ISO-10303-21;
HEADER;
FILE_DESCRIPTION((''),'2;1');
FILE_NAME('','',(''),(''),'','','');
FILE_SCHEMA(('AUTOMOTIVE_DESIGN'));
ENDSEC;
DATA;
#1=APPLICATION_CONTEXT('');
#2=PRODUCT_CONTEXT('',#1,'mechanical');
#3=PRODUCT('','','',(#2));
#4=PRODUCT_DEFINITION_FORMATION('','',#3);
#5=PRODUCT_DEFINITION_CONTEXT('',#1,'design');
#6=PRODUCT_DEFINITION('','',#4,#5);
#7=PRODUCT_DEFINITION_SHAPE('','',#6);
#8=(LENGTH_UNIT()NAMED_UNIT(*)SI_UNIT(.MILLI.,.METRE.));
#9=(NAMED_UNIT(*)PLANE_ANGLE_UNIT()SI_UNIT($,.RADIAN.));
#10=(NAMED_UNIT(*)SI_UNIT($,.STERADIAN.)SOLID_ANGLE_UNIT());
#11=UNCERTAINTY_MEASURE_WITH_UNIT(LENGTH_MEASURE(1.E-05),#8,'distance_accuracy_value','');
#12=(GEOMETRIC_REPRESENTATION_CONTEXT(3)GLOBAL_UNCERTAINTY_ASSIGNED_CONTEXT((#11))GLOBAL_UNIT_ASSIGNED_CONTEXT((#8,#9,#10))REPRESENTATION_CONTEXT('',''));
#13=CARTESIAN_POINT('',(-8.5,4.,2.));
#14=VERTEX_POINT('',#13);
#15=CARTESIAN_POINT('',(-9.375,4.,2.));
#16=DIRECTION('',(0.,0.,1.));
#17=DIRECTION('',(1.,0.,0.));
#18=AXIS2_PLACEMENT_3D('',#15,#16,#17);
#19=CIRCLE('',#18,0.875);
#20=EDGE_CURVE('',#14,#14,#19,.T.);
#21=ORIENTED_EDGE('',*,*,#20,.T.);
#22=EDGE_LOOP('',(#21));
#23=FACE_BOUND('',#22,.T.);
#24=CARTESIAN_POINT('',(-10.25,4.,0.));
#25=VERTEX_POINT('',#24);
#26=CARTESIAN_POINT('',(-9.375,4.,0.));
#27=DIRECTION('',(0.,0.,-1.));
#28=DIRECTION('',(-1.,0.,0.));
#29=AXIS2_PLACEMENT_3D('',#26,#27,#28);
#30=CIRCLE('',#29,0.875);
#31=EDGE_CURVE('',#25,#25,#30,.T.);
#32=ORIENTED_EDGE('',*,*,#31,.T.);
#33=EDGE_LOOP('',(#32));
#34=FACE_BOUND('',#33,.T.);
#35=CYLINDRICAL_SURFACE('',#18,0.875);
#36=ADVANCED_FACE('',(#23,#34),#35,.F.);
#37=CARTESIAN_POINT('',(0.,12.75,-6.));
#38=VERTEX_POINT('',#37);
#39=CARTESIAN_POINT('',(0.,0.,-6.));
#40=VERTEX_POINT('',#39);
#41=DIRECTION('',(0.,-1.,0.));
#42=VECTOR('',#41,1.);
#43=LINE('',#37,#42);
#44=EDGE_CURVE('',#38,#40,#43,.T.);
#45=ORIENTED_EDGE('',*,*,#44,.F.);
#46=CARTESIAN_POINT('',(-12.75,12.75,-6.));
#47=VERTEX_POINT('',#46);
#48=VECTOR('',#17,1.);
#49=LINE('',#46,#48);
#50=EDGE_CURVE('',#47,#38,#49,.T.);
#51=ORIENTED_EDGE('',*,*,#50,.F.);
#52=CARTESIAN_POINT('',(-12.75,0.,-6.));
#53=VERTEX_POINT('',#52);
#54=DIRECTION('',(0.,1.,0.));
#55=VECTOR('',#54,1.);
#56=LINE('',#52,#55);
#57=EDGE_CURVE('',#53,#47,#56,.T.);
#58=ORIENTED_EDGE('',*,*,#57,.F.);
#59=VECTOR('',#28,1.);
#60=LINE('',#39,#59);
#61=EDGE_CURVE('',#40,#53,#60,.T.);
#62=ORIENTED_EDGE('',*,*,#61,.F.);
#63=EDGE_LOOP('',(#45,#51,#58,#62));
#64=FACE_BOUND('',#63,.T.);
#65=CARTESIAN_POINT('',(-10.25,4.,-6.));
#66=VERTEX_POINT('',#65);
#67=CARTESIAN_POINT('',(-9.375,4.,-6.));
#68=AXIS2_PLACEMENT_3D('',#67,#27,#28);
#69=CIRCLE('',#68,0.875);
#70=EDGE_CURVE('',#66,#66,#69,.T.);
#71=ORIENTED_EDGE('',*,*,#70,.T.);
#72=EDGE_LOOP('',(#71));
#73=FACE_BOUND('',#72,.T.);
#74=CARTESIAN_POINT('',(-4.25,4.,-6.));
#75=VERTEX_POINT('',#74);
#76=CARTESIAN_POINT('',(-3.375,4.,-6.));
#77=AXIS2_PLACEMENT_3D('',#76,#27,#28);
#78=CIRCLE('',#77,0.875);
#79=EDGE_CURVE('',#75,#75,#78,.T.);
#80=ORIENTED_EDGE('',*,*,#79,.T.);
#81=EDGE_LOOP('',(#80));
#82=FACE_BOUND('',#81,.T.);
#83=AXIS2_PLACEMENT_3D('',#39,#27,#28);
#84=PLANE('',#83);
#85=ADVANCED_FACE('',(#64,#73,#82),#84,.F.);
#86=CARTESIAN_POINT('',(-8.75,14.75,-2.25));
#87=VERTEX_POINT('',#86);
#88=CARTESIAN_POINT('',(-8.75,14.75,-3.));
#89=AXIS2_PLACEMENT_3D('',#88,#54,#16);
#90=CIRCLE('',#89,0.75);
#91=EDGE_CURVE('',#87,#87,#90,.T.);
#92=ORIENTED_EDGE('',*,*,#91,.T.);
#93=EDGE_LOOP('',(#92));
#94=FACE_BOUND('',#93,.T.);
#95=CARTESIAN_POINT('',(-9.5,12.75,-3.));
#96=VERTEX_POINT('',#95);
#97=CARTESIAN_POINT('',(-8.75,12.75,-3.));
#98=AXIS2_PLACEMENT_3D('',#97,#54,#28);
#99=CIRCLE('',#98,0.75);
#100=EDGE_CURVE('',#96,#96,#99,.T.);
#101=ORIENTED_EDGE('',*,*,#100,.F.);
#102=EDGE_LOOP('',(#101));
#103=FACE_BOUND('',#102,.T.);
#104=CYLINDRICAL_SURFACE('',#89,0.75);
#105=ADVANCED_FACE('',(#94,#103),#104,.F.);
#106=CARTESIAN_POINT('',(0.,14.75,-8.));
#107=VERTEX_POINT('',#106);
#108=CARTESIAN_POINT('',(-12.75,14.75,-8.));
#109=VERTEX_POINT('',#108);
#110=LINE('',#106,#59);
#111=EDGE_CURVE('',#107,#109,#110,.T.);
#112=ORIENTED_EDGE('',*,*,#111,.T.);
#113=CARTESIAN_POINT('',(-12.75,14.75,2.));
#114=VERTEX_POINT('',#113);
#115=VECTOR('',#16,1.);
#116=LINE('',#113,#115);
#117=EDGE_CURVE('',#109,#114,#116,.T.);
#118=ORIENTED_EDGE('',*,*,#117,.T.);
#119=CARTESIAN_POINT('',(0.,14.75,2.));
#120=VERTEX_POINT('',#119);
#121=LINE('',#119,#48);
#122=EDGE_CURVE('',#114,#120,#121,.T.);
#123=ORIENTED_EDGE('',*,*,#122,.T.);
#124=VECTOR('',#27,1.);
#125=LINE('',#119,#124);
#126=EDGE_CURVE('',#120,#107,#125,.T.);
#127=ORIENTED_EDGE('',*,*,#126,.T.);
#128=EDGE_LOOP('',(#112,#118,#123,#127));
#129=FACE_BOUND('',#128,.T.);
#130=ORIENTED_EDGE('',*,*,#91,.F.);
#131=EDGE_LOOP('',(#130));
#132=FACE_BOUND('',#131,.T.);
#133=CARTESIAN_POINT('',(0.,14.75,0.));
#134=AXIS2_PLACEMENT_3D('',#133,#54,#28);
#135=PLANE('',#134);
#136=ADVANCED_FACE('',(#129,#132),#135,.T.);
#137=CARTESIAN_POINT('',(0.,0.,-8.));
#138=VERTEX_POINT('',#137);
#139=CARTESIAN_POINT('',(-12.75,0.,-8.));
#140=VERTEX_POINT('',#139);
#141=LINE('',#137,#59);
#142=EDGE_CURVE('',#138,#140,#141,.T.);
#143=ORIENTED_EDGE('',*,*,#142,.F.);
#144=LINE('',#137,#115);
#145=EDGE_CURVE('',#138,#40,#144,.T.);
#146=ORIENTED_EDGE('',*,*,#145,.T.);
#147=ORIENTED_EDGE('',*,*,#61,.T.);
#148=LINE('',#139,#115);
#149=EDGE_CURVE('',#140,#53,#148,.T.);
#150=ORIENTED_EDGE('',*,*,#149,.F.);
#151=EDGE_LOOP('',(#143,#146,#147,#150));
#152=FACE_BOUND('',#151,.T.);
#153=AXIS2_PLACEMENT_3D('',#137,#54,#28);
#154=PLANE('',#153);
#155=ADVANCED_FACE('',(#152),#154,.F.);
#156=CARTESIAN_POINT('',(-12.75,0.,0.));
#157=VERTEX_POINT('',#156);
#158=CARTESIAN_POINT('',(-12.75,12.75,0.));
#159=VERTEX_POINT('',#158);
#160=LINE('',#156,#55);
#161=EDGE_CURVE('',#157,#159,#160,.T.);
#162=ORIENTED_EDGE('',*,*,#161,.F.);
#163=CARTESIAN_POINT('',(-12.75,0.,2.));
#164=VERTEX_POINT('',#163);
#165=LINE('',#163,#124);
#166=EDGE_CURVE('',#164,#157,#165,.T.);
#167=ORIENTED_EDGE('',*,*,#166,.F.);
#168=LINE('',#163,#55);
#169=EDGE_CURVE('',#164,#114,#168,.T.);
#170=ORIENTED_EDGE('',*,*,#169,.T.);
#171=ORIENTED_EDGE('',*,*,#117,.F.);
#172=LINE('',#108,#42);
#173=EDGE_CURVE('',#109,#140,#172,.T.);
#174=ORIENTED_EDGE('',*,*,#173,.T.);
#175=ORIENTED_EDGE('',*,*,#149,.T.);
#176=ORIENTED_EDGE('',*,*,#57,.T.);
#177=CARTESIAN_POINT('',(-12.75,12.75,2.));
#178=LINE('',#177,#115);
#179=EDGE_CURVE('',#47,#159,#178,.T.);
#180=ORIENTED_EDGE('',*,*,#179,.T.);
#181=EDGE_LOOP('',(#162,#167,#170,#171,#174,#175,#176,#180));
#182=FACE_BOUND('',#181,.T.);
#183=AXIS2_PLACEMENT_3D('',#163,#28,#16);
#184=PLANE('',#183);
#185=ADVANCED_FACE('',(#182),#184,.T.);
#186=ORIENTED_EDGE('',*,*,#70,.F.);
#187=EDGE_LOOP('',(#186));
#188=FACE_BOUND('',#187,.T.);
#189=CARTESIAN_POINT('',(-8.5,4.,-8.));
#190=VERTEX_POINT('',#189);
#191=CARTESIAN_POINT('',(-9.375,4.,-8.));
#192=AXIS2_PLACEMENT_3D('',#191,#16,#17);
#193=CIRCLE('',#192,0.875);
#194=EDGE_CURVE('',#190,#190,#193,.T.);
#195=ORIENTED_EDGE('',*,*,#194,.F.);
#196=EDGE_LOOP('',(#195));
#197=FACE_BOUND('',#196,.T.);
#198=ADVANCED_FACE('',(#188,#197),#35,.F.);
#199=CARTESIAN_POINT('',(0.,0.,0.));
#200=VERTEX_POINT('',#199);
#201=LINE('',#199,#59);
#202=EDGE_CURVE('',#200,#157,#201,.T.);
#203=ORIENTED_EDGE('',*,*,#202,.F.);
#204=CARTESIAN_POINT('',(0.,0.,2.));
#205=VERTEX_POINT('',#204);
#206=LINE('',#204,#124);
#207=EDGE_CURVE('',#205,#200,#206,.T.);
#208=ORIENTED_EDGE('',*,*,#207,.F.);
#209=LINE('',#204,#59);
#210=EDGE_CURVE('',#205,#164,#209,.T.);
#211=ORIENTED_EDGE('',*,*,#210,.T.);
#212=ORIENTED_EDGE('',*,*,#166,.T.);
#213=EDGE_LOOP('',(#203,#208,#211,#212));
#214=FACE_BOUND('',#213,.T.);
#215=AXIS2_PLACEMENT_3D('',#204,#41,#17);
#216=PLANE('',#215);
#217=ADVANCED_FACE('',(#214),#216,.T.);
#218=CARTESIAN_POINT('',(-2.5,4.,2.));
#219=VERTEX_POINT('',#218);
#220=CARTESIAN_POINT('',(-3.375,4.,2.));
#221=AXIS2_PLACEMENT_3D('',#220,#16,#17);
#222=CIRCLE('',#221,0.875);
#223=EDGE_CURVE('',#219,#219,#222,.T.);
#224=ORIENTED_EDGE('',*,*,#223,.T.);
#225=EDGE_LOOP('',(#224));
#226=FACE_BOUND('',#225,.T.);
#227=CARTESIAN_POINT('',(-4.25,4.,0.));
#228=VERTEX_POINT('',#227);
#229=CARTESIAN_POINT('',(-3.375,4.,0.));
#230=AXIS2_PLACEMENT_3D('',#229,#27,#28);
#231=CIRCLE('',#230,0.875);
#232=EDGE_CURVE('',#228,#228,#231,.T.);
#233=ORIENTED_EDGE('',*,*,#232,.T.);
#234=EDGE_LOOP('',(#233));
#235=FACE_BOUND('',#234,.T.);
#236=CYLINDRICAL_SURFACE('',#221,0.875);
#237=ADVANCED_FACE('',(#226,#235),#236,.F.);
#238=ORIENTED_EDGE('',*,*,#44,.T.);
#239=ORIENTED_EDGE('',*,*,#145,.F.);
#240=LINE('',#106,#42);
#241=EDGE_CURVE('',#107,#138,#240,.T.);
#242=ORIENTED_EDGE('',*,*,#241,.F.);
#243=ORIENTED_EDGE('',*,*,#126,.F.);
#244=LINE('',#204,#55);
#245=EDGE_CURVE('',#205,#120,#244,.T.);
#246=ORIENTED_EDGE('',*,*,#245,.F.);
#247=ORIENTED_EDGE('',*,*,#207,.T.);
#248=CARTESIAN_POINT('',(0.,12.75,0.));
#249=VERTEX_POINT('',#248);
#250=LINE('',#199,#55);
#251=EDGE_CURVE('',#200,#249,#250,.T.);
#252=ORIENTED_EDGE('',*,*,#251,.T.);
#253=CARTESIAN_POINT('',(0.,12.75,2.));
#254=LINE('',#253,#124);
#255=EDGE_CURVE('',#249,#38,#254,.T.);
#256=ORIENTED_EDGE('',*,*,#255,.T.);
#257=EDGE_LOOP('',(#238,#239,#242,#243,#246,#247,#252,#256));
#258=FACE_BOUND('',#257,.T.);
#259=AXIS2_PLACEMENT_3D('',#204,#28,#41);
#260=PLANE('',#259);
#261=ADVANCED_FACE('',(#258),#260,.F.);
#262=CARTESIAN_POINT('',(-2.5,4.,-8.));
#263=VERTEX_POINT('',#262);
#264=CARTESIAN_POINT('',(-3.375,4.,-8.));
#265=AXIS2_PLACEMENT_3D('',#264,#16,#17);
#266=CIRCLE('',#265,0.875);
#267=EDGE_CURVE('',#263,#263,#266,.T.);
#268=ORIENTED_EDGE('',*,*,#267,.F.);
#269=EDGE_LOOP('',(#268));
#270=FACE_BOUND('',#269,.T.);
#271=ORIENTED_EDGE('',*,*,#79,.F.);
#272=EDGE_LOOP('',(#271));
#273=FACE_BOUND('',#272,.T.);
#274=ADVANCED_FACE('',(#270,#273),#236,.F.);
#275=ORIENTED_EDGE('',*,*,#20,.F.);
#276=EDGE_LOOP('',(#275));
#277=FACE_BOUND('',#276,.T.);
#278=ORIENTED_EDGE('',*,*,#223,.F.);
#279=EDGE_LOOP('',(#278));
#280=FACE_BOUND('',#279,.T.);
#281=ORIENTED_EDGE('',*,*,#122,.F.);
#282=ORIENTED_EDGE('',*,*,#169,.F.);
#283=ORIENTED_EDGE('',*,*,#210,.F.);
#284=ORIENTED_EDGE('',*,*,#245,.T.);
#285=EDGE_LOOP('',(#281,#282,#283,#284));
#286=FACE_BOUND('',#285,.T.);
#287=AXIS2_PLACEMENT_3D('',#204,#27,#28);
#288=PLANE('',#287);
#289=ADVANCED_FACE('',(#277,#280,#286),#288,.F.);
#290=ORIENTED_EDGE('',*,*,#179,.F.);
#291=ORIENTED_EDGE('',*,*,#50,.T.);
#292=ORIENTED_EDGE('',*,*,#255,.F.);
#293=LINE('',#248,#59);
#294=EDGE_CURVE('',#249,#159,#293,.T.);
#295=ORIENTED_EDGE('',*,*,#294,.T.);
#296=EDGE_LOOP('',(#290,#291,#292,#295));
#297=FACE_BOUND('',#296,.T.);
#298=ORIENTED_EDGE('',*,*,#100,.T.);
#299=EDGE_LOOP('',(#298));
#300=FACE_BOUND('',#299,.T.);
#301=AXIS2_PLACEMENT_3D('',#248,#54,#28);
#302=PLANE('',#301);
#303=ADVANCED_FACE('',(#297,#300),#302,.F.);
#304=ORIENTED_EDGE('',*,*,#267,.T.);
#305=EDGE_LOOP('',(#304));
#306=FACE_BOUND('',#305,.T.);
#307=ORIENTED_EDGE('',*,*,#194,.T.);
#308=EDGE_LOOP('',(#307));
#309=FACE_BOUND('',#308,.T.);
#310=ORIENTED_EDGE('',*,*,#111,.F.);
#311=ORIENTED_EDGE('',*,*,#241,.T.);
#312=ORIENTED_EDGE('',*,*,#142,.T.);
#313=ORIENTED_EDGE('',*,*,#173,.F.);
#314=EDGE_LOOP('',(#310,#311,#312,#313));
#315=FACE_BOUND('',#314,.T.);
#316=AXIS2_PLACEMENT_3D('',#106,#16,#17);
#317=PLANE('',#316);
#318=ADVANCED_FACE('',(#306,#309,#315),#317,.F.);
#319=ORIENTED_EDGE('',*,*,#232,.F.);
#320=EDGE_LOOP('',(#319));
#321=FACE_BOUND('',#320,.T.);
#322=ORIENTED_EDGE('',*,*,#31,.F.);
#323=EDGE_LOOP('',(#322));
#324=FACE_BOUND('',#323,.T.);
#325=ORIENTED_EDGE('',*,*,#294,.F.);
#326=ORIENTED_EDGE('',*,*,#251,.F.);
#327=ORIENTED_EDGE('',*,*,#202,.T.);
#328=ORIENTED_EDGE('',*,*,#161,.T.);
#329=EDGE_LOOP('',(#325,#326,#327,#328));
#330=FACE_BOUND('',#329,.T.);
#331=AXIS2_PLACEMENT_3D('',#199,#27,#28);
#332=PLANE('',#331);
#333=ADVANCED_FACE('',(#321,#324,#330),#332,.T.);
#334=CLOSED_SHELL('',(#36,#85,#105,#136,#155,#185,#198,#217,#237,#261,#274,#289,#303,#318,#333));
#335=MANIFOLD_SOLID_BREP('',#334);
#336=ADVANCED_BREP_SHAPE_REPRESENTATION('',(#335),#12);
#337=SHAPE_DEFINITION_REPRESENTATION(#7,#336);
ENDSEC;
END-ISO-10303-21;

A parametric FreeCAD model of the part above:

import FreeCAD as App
import Part
import Sketcher

V = App.Vector

doc = App.newDocument("Part")
body = doc.addObject("PartDesign::Body", "Body")

# Sketch on XY plane
sketch1 = body.newObject("Sketcher::SketchObject", "Sketch")
sketch1.AttachmentSupport = (doc.getObject("XY_Plane"), [""])
sketch1.MapMode = "FlatFace"
sketch1.addGeometry(Part.LineSegment(V(-12.75, 12.75, 0), V(-12.75, 0, 0)), False)
sketch1.addGeometry(Part.LineSegment(V(-12.75, 0, 0), V(0, 0, 0)), False)
sketch1.addGeometry(Part.LineSegment(V(0, 0, 0), V(0, 12.75, 0)), False)
sketch1.addGeometry(Part.LineSegment(V(0, 12.75, 0), V(-12.75, 12.75, 0)), False)
sketch1.addConstraint(Sketcher.Constraint("Coincident", 0, 2, 1, 1))
sketch1.addConstraint(Sketcher.Constraint("Coincident", 1, 2, 2, 1))
sketch1.addConstraint(Sketcher.Constraint("Coincident", 2, 2, 3, 1))
sketch1.addConstraint(Sketcher.Constraint("Coincident", 3, 2, 0, 1))
sketch1.addConstraint(Sketcher.Constraint("Vertical", 0))
sketch1.addConstraint(Sketcher.Constraint("Horizontal", 1))
sketch1.addConstraint(Sketcher.Constraint("Vertical", 2))
sketch1.addConstraint(Sketcher.Constraint("Horizontal", 3))
sketch1.addConstraint(Sketcher.Constraint("Coincident", 1, 2, -1, 1))
sketch1.addConstraint(Sketcher.Constraint("Equal", 3, 0))
sketch1.addConstraint(Sketcher.Constraint("DistanceX", 1, 1, 1, 2, 12.75))
pad1 = body.newObject("PartDesign::Pad", "Pad")
pad1.Profile = sketch1
pad1.Length = 2
body2 = doc.addObject("PartDesign::Body", "Body001")

# Sketch on XY plane
sketch2 = body2.newObject("Sketcher::SketchObject", "Sketch001")
sketch2.AttachmentSupport = (doc.getObject("XY_Plane001"), [""])
sketch2.MapMode = "FlatFace"
sketch2.AttachmentOffset = App.Placement(V(0, 0, -6), App.Rotation())
sketch2.addGeometry(Part.LineSegment(V(0, 12.75, 0), V(0, 0, 0)), False)
sketch2.addGeometry(Part.LineSegment(V(0, 0, 0), V(-12.75, 0, 0)), False)
sketch2.addGeometry(Part.LineSegment(V(-12.75, 0, 0), V(-12.75, 12.75, 0)), False)
sketch2.addGeometry(Part.LineSegment(V(-12.75, 12.75, 0), V(0, 12.75, 0)), False)
sketch2.addConstraint(Sketcher.Constraint("Coincident", 0, 2, 1, 1))
sketch2.addConstraint(Sketcher.Constraint("Coincident", 1, 2, 2, 1))
sketch2.addConstraint(Sketcher.Constraint("Coincident", 2, 2, 3, 1))
sketch2.addConstraint(Sketcher.Constraint("Coincident", 3, 2, 0, 1))
sketch2.addConstraint(Sketcher.Constraint("Vertical", 0))
sketch2.addConstraint(Sketcher.Constraint("Horizontal", 1))
sketch2.addConstraint(Sketcher.Constraint("Vertical", 2))
sketch2.addConstraint(Sketcher.Constraint("Horizontal", 3))
sketch2.addConstraint(Sketcher.Constraint("Coincident", 0, 2, -1, 1))
sketch2.addConstraint(Sketcher.Constraint("Equal", 3, 0))
sketch2.addConstraint(Sketcher.Constraint("DistanceX", 1, 2, 1, 1, 12.75))
pad2 = body2.newObject("PartDesign::Pad", "Pad001")
pad2.Profile = sketch2
pad2.Length = 2
pad2.Reversed = True
body.AllowCompound = True
doc.recompute()

boolean = body.newObject("PartDesign::Boolean", "Boolean")
boolean.Type = "Fuse"
boolean.addObjects([body2])

# Sketch on XZ plane
sketch3 = body.newObject("Sketcher::SketchObject", "Sketch002")
sketch3.AttachmentSupport = (doc.getObject("XZ_Plane"), [""])
sketch3.MapMode = "FlatFace"
sketch3.AttachmentOffset = App.Placement(V(0, 0, -12.75), App.Rotation())
sketch3.addGeometry(Part.LineSegment(V(-12.75, -8, 0), V(-12.75, 2, 0)), False)
sketch3.addGeometry(Part.LineSegment(V(-12.75, 2, 0), V(0, 2, 0)), False)
sketch3.addGeometry(Part.LineSegment(V(0, 2, 0), V(0, -8, 0)), False)
sketch3.addGeometry(Part.LineSegment(V(0, -8, 0), V(-12.75, -8, 0)), False)
sketch3.addConstraint(Sketcher.Constraint("Coincident", 0, 2, 1, 1))
sketch3.addConstraint(Sketcher.Constraint("Coincident", 1, 2, 2, 1))
sketch3.addConstraint(Sketcher.Constraint("Coincident", 2, 2, 3, 1))
sketch3.addConstraint(Sketcher.Constraint("Coincident", 3, 2, 0, 1))
sketch3.addConstraint(Sketcher.Constraint("Vertical", 0))
sketch3.addConstraint(Sketcher.Constraint("Horizontal", 1))
sketch3.addConstraint(Sketcher.Constraint("Vertical", 2))
sketch3.addConstraint(Sketcher.Constraint("Horizontal", 3))
sketch3.addConstraint(Sketcher.Constraint("PointOnObject", 1, 2, -2))
sketch3.addConstraint(Sketcher.Constraint("DistanceY", 0, 1, 0, 2, 10.0))
sketch3.addConstraint(Sketcher.Constraint("DistanceY", -1, 1, 0, 2, 2.0))
sketch3.addConstraint(Sketcher.Constraint("DistanceX", 1, 1, 1, 2, 12.75))
pad3 = body.newObject("PartDesign::Pad", "Pad002")
pad3.Profile = sketch3
pad3.Length = 2
pad3.Reversed = True

# Sketch on XY plane
sketch4 = body.newObject("Sketcher::SketchObject", "Sketch003")
sketch4.AttachmentSupport = (doc.getObject("XY_Plane"), [""])
sketch4.MapMode = "FlatFace"
sketch4.AttachmentOffset = App.Placement(V(0, 0, 2), App.Rotation())
sketch4.addGeometry(Part.Circle(V(-9.375, 4, 0), V(0, 0, 1), 0.875), False)
sketch4.addGeometry(Part.Circle(V(-3.375, 4, 0), V(0, 0, 1), 0.875), False)
sketch4.addConstraint(Sketcher.Constraint("Equal", 0, 1))
sketch4.addConstraint(Sketcher.Constraint("Horizontal", 0, 3, 1, 3))
sketch4.addConstraint(Sketcher.Constraint("Diameter", 0, 1.75))
sketch4.addConstraint(Sketcher.Constraint("DistanceY", -1, 1, 0, 3, 4.0))
sketch4.addConstraint(Sketcher.Constraint("DistanceX", 0, 3, 1, 3, 6.0))
sketch4.addConstraint(Sketcher.Constraint("DistanceX", 0, 3, -1, 1, 9.375))
doc.recompute()
hole = body.newObject("PartDesign::Hole", "Hole")
hole.Profile = sketch4
hole.ThreadType = "None"
hole.Diameter = 1.75
hole.DepthType = "ThroughAll"

# Sketch on XZ plane
sketch5 = body.newObject("Sketcher::SketchObject", "Sketch004")
sketch5.AttachmentSupport = (doc.getObject("XZ_Plane"), [""])
sketch5.MapMode = "FlatFace"
sketch5.AttachmentOffset = App.Placement(V(0, 0, -14.75), App.Rotation())
sketch5.addGeometry(Part.Circle(V(-8.75, -3, 0), V(0, 0, 1), 0.75), False)
sketch5.addConstraint(Sketcher.Constraint("Diameter", 0, 1.5))
sketch5.addConstraint(Sketcher.Constraint("DistanceY", 0, 3, -1, 1, 3.0))
sketch5.addConstraint(Sketcher.Constraint("DistanceX", 0, 3, -1, 1, 8.75))
doc.recompute()
hole2 = body.newObject("PartDesign::Hole", "Hole001")
hole2.Profile = sketch5
hole2.ThreadType = "None"
hole2.Diameter = 1.5
hole2.DepthType = "ThroughAll"
hole2.Reversed = True

doc.recompute()
